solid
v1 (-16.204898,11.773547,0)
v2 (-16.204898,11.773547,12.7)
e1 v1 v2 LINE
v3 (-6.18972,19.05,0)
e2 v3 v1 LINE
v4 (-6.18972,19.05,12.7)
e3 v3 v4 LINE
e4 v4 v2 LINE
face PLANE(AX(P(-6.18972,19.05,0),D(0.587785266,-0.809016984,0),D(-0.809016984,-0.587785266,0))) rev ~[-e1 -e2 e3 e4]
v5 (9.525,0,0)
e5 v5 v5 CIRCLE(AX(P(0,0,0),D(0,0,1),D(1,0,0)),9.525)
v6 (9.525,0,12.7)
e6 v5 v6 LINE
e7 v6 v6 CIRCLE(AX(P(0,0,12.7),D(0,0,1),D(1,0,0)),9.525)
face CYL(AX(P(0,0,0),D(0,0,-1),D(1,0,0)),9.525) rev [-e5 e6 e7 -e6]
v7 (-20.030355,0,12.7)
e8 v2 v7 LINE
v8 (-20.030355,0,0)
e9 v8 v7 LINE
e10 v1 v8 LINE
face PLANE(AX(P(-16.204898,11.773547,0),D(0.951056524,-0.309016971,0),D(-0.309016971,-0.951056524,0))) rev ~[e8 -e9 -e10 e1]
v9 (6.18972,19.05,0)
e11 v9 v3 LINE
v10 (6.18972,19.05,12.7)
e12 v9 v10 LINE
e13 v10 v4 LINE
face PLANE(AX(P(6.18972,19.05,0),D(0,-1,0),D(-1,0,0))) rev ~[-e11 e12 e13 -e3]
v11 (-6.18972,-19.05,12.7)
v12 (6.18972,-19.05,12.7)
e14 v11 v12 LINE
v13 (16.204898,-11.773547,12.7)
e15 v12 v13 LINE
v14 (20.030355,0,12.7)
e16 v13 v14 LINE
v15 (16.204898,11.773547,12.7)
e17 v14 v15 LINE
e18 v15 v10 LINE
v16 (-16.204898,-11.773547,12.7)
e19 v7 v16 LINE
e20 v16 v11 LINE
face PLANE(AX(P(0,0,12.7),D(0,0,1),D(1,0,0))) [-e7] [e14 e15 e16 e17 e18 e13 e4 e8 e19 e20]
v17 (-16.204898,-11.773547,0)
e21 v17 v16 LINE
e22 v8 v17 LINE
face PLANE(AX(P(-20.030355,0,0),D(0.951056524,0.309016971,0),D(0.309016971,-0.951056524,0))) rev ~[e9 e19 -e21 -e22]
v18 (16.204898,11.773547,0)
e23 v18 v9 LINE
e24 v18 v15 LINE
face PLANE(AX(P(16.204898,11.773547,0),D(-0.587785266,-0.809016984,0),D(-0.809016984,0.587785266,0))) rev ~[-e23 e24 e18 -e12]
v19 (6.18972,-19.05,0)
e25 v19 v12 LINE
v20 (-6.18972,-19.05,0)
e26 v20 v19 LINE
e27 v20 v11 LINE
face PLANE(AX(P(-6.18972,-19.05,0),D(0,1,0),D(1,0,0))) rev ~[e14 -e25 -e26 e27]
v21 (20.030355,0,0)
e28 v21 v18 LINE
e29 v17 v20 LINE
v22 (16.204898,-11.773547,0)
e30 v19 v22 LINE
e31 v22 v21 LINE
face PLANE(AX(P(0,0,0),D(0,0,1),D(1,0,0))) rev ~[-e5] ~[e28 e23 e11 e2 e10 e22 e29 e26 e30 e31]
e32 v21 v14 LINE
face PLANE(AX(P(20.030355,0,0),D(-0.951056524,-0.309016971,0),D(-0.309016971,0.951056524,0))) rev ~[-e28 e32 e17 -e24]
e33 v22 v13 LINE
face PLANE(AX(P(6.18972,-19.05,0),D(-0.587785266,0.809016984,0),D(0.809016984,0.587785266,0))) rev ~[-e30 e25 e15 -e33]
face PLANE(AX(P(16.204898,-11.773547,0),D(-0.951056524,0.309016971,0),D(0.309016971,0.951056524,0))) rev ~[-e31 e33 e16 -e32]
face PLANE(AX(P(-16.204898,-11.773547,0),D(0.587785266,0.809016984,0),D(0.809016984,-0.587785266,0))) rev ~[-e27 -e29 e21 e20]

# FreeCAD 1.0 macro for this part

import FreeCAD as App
import Part
import Sketcher
Q = App.Units.Quantity

doc = App.newDocument("Part")
body = doc.addObject("PartDesign::Body", "Body")

# Sketch on XY plane
sketch1 = doc.addObject("Sketcher::SketchObject", "Sketch")
body.addObject(sketch1)
sketch1.AttachmentSupport = (doc.XY_Plane, [""])
sketch1.MapMode = "FlatFace"
sketch1.addGeometry([
    Part.LineSegment(App.Vector(16.204898, 11.773547, 0), App.Vector(6.18972, 19.05, 0)),  # 0
    Part.LineSegment(App.Vector(6.18972, 19.05, 0), App.Vector(-6.18972, 19.05, 0)),  # 1
    Part.LineSegment(App.Vector(-6.18972, 19.05, 0), App.Vector(-16.204898, 11.773547, 0)),  # 2
    Part.LineSegment(App.Vector(-16.204898, 11.773547, 0), App.Vector(-20.030355, 0, 0)),  # 3
    Part.LineSegment(App.Vector(-20.030355, 0, 0), App.Vector(-16.204898, -11.773547, 0)),  # 4
    Part.LineSegment(App.Vector(-16.204898, -11.773547, 0), App.Vector(-6.18972, -19.05, 0)),  # 5
    Part.LineSegment(App.Vector(-6.18972, -19.05, 0), App.Vector(6.18972, -19.05, 0)),  # 6
    Part.LineSegment(App.Vector(6.18972, -19.05, 0), App.Vector(16.204898, -11.773547, 0)),  # 7
    Part.LineSegment(App.Vector(16.204898, -11.773547, 0), App.Vector(20.030355, 0, 0)),  # 8
    Part.LineSegment(App.Vector(20.030355, 0, 0), App.Vector(16.204898, 11.773547, 0)),  # 9
    Part.Circle(App.Vector(0, 0, 0), App.Vector(0, 0, 1), 9.525),  # 10
], False)
sketch1.addConstraint([
    Sketcher.Constraint("Coincident", 0, 2, 1, 1),
    Sketcher.Constraint("Coincident", 1, 2, 2, 1),
    Sketcher.Constraint("Coincident", 2, 2, 3, 1),
    Sketcher.Constraint("Coincident", 3, 2, 4, 1),
    Sketcher.Constraint("Coincident", 4, 2, 5, 1),
    Sketcher.Constraint("Coincident", 5, 2, 6, 1),
    Sketcher.Constraint("Coincident", 6, 2, 7, 1),
    Sketcher.Constraint("Coincident", 7, 2, 8, 1),
    Sketcher.Constraint("Coincident", 8, 2, 9, 1),
    Sketcher.Constraint("Coincident", 9, 2, 0, 1),
    Sketcher.Constraint("Horizontal", 1),
    Sketcher.Constraint("Horizontal", 6),
    Sketcher.Constraint("Coincident", 10, 3, -1, 1),
    Sketcher.Constraint("Symmetric", 0, 2, 5, 2, -1, 1),
    Sketcher.Constraint("Symmetric", 2, 2, 7, 2, -1, 1),
    Sketcher.Constraint("Symmetric", 3, 2, 8, 2, -1, 1),
    Sketcher.Constraint("Symmetric", 4, 2, 9, 2, -1, 1),
    Sketcher.Constraint("Symmetric", 4, 2, 7, 2, -2),
    Sketcher.Constraint("PointOnObject", 3, 2, -1),
    Sketcher.Constraint("Parallel", 2, 7),
    Sketcher.Constraint("Vertical", 1, 2, 5, 2),
    Sketcher.Constraint("Equal", 2, 3),
    Sketcher.Constraint("Diameter", 10, Q("0.75 in")),
    Sketcher.Constraint("Angle", 0, Q("143.999999 deg")),
    Sketcher.Constraint("Angle", 3, Q("-107.999999 deg")),
    Sketcher.Constraint("DistanceY", 5, 2, 1, 2, Q("1.5 in")),
    Sketcher.Constraint("DistanceX", 1, 2, 1, 1, 12.37944),
])
pad1 = doc.addObject("PartDesign::Pad", "Pad")
body.addObject(pad1)
pad1.Profile = sketch1
pad1.Length = Q("0.5 in")

doc.recompute()
